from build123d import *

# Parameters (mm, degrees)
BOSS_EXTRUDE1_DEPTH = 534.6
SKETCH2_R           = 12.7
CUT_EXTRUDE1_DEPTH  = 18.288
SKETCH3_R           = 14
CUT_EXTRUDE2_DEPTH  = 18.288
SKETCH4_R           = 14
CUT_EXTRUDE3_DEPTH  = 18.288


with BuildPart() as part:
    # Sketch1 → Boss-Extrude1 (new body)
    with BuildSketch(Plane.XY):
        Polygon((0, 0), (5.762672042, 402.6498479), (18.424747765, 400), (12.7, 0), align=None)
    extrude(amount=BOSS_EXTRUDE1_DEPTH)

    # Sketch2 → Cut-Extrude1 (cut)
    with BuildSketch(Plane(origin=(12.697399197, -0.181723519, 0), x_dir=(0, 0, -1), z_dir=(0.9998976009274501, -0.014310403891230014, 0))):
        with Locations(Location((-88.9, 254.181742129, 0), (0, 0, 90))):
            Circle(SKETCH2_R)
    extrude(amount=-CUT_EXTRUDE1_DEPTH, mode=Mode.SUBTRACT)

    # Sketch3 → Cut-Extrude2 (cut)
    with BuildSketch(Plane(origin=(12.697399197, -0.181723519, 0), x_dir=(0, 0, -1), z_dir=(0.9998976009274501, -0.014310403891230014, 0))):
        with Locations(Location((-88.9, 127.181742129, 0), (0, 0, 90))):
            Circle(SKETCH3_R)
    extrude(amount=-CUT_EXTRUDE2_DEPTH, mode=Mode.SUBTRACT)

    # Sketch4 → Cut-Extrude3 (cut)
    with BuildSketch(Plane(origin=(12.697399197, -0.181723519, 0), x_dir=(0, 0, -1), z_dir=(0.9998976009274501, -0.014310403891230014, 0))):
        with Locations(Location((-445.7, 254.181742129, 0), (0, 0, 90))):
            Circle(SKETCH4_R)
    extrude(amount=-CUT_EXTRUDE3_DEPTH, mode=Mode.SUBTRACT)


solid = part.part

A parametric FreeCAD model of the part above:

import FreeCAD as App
import Part
import Sketcher
Q = App.Units.Quantity

doc = App.newDocument("Part")
body = doc.addObject("PartDesign::Body", "Body")

# Sketch on XY plane
sketch1 = body.newObject("Sketcher::SketchObject", "Sketch")
sketch1.AttachmentSupport = (doc.getObject("XY_Plane"), [""])
sketch1.MapMode = "FlatFace"
sketch1.addGeometry([
    Part.LineSegment(App.Vector(6, 403, 0), App.Vector(0, 0, 0)),
    Part.LineSegment(App.Vector(0, 0, 0), App.Vector(13, 0, 0)),
    Part.LineSegment(App.Vector(13, 0, 0), App.Vector(18, 400, 0)),
    Part.LineSegment(App.Vector(18, 400, 0), App.Vector(6, 403, 0)),
], False)
sketch1.addConstraint([
    Sketcher.Constraint("Coincident", 0, 2, 1, 1),
    Sketcher.Constraint("Coincident", 1, 2, 2, 1),
    Sketcher.Constraint("Coincident", 2, 2, 3, 1),
    Sketcher.Constraint("Coincident", 3, 2, 0, 1),
    Sketcher.Constraint("Horizontal", 1),
    Sketcher.Constraint("Coincident", 0, 2, -1, 1),
    Sketcher.Constraint("Parallel", 0, 2),
    Sketcher.Constraint("DistanceX", 1, 1, 1, 2, Q("0.5 in")),
    Sketcher.Constraint("DistanceY", -1, 1, 2, 2, 400.0),
    Sketcher.Constraint("Distance", 0, 402.691083),
    Sketcher.Constraint("Distance", 2, 400.040964),
])
pad1 = body.newObject("PartDesign::Pad", "Pad")
pad1.Profile = sketch1
pad1.Length = 534.6

# Sketch on an angled plane
sketch2 = body.newObject("Sketcher::SketchObject", "Sketch001")
sketch2.Placement = App.Placement(App.Vector(12.697399, -0.181724, 0), App.Rotation(App.Vector(0, 0, -1), App.Vector(0.014310404, 0.999897601, 0), App.Vector(0.999897601, -0.014310404, 0), "ZXY"))
sketch2.addGeometry(Part.Circle(App.Vector(-89, 254, 0), App.Vector(0, 0, 1), 13), False)
sketch2.addConstraint([
    Sketcher.Constraint("Diameter", 0, Q("1 in")),
    Sketcher.Constraint("DistanceX", 0, 3, -1, 1, Q("3.5 in")),
    Sketcher.Constraint("DistanceY", -1, 1, 0, 3, 254.181742),
])
pocket1 = body.newObject("PartDesign::Pocket", "Pocket")
pocket1.Profile = sketch2
pocket1.Length = Q("0.72 in")

# Sketch on an angled plane
sketch3 = body.newObject("Sketcher::SketchObject", "Sketch002")
sketch3.Placement = App.Placement(App.Vector(12.697399, -0.181724, 0), App.Rotation(App.Vector(0, 0, -1), App.Vector(0.014310404, 0.999897601, 0), App.Vector(0.999897601, -0.014310404, 0), "ZXY"))
sketch3.addGeometry(Part.Circle(App.Vector(-89, 127, 0), App.Vector(0, 0, 1), 14), False)
sketch3.addConstraint([
    Sketcher.Constraint("DistanceX", 0, 3, -1, 1, Q("3.5 in")),
    Sketcher.Constraint("Diameter", 0, 28.0),
    Sketcher.Constraint("DistanceY", -1, 1, 0, 3, 127.181742),
])
pocket2 = body.newObject("PartDesign::Pocket", "Pocket001")
pocket2.Profile = sketch3
pocket2.Length = Q("0.72 in")

# Sketch on an angled plane
sketch4 = body.newObject("Sketcher::SketchObject", "Sketch003")
sketch4.Placement = App.Placement(App.Vector(12.697399, -0.181724, 0), App.Rotation(App.Vector(0, 0, -1), App.Vector(0.014310404, 0.999897601, 0), App.Vector(0.999897601, -0.014310404, 0), "ZXY"))
sketch4.addGeometry(Part.Circle(App.Vector(-446, 254, 0), App.Vector(0, 0, 1), 14), False)
sketch4.addConstraint([
    Sketcher.Constraint("Diameter", 0, 28.0),
    Sketcher.Constraint("DistanceX", 0, 3, -1, 1, 445.7),
    Sketcher.Constraint("DistanceY", -1, 1, 0, 3, 254.181742),
])
pocket3 = body.newObject("PartDesign::Pocket", "Pocket002")
pocket3.Profile = sketch4
pocket3.Length = Q("0.72 in")

doc.recompute()
